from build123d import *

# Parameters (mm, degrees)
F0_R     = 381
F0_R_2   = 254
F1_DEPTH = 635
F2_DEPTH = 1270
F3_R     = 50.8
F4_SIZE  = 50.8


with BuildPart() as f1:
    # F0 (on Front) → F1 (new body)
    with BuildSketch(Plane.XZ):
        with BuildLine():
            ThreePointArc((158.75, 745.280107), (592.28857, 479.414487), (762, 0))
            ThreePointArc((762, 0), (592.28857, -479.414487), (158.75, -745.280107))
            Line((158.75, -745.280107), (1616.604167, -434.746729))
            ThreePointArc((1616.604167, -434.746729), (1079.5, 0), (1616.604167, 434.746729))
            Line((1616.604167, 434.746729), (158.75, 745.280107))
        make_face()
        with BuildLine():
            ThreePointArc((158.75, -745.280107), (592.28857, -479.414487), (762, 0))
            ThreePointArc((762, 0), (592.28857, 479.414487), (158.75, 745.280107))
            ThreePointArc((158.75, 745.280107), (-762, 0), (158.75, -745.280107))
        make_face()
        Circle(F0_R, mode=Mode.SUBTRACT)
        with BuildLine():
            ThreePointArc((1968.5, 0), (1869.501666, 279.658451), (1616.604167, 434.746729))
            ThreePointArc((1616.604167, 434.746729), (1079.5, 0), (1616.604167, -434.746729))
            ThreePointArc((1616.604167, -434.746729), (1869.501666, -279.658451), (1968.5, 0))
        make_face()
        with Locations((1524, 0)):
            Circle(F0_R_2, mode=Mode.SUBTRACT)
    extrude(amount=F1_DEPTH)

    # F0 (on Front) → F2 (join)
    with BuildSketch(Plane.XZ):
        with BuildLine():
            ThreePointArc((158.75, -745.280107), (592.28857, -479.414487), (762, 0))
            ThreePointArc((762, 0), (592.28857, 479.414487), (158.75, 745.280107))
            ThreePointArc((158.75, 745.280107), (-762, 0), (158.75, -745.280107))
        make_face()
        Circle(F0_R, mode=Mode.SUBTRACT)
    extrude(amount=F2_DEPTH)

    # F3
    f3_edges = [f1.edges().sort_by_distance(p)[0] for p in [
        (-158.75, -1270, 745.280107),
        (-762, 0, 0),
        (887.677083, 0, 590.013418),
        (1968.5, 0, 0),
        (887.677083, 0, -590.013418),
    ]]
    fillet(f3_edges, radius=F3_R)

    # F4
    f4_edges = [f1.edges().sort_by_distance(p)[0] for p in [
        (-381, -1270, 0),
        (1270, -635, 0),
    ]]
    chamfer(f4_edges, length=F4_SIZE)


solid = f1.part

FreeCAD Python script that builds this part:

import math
import FreeCAD as App
import Part
import Sketcher
Q = App.Units.Quantity


def edges_at(feature, points):
    """Names of the edges that pass closest to the given points."""
    edges = feature.Shape.Edges
    near = lambda p: min(range(len(edges)), key=lambda i: edges[i].distToShape(Part.Vertex(*p))[0])
    return sorted({f"Edge{near(p) + 1}" for p in points})

doc = App.newDocument("Part")
body = doc.addObject("PartDesign::Body", "Body")

sketch1 = body.newObject("Sketcher::SketchObject", "Sketch")
sketch1.AttachmentSupport = (doc.getObject("XZ_Plane"), [""])
sketch1.MapMode = "FlatFace"
sketch1.addGeometry(Part.LineSegment(App.Vector(159, -745, 0), App.Vector(1617, -435, 0)), False)
sketch1.addGeometry(Part.ArcOfCircle(Part.Circle(App.Vector(1524, 0, 0), App.Vector(0, 0, 1), 444), math.radians(-78), math.radians(0)), False)
sketch1.addGeometry(Part.ArcOfCircle(Part.Circle(App.Vector(1524, 0, 0), App.Vector(0, 0, 1), 444), math.radians(0), math.radians(78)), False)
sketch1.addGeometry(Part.LineSegment(App.Vector(1617, 435, 0), App.Vector(159, 745, 0)), False)
sketch1.addGeometry(Part.ArcOfCircle(Part.Circle(App.Vector(0, 0, 0), App.Vector(0, 0, 1), 762), math.radians(78), math.radians(282)), False)
sketch1.addGeometry(Part.Circle(App.Vector(0, 0, 0), App.Vector(0, 0, 1), 381), False)
sketch1.addGeometry(Part.Circle(App.Vector(1524, 0, 0), App.Vector(0, 0, 1), 254), False)
sketch1.addConstraint(Sketcher.Constraint("Tangent", 0, 2, 1, 1))
sketch1.addConstraint(Sketcher.Constraint("Tangent", 1, 2, 2, 1))
sketch1.addConstraint(Sketcher.Constraint("Tangent", 2, 2, 3, 1))
sketch1.addConstraint(Sketcher.Constraint("Coincident", 3, 2, 4, 1))
sketch1.addConstraint(Sketcher.Constraint("Coincident", 4, 2, 0, 1))
sketch1.addConstraint(Sketcher.Constraint("Coincident", 4, 3, -1, 1))
sketch1.addConstraint(Sketcher.Constraint("Coincident", 5, 3, -1, 1))
sketch1.addConstraint(Sketcher.Constraint("Coincident", 6, 3, 1, 3))
sketch1.addConstraint(Sketcher.Constraint("Equal", 1, 2))
sketch1.addConstraint(Sketcher.Constraint("PointOnObject", 1, 3, -1))
sketch1.addConstraint(Sketcher.Constraint("PointOnObject", 1, 2, -1))
sketch1.addConstraint(Sketcher.Constraint("Equal", 0, 3))
sketch1.addConstraint(Sketcher.Constraint("Diameter", 5, Q("30 in")))
sketch1.addConstraint(Sketcher.Constraint("Diameter", 6, Q("20 in")))
sketch1.addConstraint(Sketcher.Constraint("Radius", 4, Q("30 in")))
sketch1.addConstraint(Sketcher.Constraint("Radius", 1, Q("17.4999999 in")))
sketch1.addConstraint(Sketcher.Constraint("DistanceX", -1, 1, 1, 3, Q("60.0000001 in")))
sketch1.addConstraint(Sketcher.Constraint("DistanceX", -1, 1, 3, 2, Q("6.25 in")))
pad1 = body.newObject("PartDesign::Pad", "Pad")
pad1.Profile = sketch1
pad1.Length = Q("25 in")

sketch2 = body.newObject("Sketcher::SketchObject", "Sketch001")
sketch2.AttachmentSupport = (doc.getObject("XZ_Plane"), [""])
sketch2.MapMode = "FlatFace"
sketch2.addGeometry(Part.ArcOfCircle(Part.Circle(App.Vector(0, 0, 0), App.Vector(0, 0, 1), 762), math.radians(-78), math.radians(0)), False)
sketch2.addGeometry(Part.ArcOfCircle(Part.Circle(App.Vector(0, 0, 0), App.Vector(0, 0, 1), 762), math.radians(0), math.radians(78)), False)
sketch2.addGeometry(Part.ArcOfCircle(Part.Circle(App.Vector(0, 0, 0), App.Vector(0, 0, 1), 762), math.radians(78), math.radians(282)), False)
sketch2.addGeometry(Part.Circle(App.Vector(0, 0, 0), App.Vector(0, 0, 1), 381), False)
sketch2.addConstraint(Sketcher.Constraint("Coincident", 0, 2, 1, 1))
sketch2.addConstraint(Sketcher.Constraint("Coincident", 1, 2, 2, 1))
sketch2.addConstraint(Sketcher.Constraint("Coincident", 2, 2, 0, 1))
sketch2.addConstraint(Sketcher.Constraint("Coincident", 0, 3, -1, 1))
sketch2.addConstraint(Sketcher.Constraint("Coincident", 1, 3, -1, 1))
sketch2.addConstraint(Sketcher.Constraint("Coincident", 3, 3, -1, 1))
sketch2.addConstraint(Sketcher.Constraint("Equal", 1, 2))
sketch2.addConstraint(Sketcher.Constraint("PointOnObject", 0, 2, -1))
sketch2.addConstraint(Sketcher.Constraint("Vertical", 1, 2, 2, 2))
sketch2.addConstraint(Sketcher.Constraint("Diameter", 3, Q("30 in")))
sketch2.addConstraint(Sketcher.Constraint("Radius", 0, Q("30 in")))
sketch2.addConstraint(Sketcher.Constraint("DistanceX", -1, 1, 1, 2, Q("6.25 in")))
pad2 = body.newObject("PartDesign::Pad", "Pad001")
pad2.Profile = sketch2
pad2.Length = Q("50 in")
doc.recompute()

fillet = body.newObject("PartDesign::Fillet", "Fillet")
fillet.Base = (pad2, edges_at(pad2, [
    (-762, -1270, 0),
    (-762, 0, 0),
    (887.677, 0, 590.013),
    (1869.502, 0, -279.658),
    (887.677, 0, -590.013),
]))
fillet.Radius = Q("2 in")
doc.recompute()

chamfer = body.newObject("PartDesign::Chamfer", "Chamfer")
chamfer.Base = (fillet, edges_at(fillet, [(-381, -1270, 0), (1270, -635, 0)]))
chamfer.Size = Q("2 in")

doc.recompute()
